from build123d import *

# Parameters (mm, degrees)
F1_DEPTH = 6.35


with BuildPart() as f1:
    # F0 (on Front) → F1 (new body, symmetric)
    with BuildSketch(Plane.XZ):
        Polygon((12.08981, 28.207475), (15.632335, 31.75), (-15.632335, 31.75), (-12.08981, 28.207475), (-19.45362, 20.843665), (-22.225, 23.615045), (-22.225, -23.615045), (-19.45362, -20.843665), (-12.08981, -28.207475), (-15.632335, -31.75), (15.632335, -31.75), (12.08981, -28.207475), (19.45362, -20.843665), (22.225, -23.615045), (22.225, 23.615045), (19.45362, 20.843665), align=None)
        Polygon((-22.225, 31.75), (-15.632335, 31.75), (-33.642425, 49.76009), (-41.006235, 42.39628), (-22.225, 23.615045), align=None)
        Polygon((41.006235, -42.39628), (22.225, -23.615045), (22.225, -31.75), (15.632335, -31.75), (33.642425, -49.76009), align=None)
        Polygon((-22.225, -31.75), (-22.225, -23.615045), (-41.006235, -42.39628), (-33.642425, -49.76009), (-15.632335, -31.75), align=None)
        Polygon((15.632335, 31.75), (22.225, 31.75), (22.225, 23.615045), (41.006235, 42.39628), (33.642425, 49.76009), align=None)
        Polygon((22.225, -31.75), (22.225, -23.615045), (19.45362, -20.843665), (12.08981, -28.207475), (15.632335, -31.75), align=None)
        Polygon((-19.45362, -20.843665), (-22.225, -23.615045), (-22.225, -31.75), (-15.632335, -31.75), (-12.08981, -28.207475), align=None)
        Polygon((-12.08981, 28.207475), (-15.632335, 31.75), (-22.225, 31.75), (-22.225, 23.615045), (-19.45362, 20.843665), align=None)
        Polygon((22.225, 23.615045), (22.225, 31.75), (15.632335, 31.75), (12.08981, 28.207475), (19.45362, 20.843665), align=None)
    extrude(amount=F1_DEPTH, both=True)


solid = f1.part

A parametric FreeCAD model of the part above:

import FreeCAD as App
import Part
import Sketcher
from FreeCAD import Vector
Q = App.Units.Quantity


def add_polygon(sketch, points):
    """Adds a closed chain of lines whose ends are joined by coincident constraints."""
    first, n = sketch.GeometryCount, len(points)
    for a, b in zip(points, points[1:] + points[:1]):
        sketch.addGeometry(Part.LineSegment(App.Vector(*a, 0), App.Vector(*b, 0)), False)
    for i in range(n):
        sketch.addConstraint(Sketcher.Constraint("Coincident", first + i, 2, first + (i + 1) % n, 1))

doc = App.newDocument("Part")
body = doc.addObject("PartDesign::Body", "Body")

sketch1 = body.newObject("Sketcher::SketchObject", "Sketch")
sketch1.AttachmentSupport = (doc.getObject("XZ_Plane"), [""])
sketch1.MapMode = "FlatFace"
add_polygon(sketch1, [(16, 32), (-16, 32), (-34, 50), (-41, 42), (-22, 24), (-22, -24), (-41, -42), (-34, -50), (-16, -32), (16, -32), (34, -50), (41, -42), (22, -24), (22, 24), (41, 42), (34, 50)])
sketch1.addConstraint([
    Sketcher.Constraint("Horizontal", 0),
    Sketcher.Constraint("Vertical", 4),
    Sketcher.Constraint("Horizontal", 8),
    Sketcher.Constraint("Vertical", 12),
    Sketcher.Constraint("Symmetric", 0, 2, 8, 2, -1, 1),
    Sketcher.Constraint("Symmetric", 1, 2, 9, 2, -1, 1),
    Sketcher.Constraint("Symmetric", 2, 2, 10, 2, -1, 1),
    Sketcher.Constraint("Symmetric", 3, 2, 11, 2, -1, 1),
    Sketcher.Constraint("Symmetric", 5, 2, 13, 2, -1, 1),
    Sketcher.Constraint("Symmetric", 6, 2, 14, 2, -1, 1),
    Sketcher.Constraint("Symmetric", 6, 2, 9, 2, -2),
    Sketcher.Constraint("Symmetric", 5, 2, 10, 2, -2),
    Sketcher.Constraint("Perpendicular", 1, 2),
    Sketcher.Constraint("Perpendicular", 2, 3),
    Sketcher.Constraint("Perpendicular", 3, 5),
    Sketcher.Constraint("Perpendicular", 5, 6),
    Sketcher.Constraint("Perpendicular", 6, 7),
    Sketcher.Constraint("Perpendicular", 11, 13),
    Sketcher.Constraint("Perpendicular", 14, 15),
    Sketcher.Constraint("DistanceY", 7, 2, 0, 2, Q("2.5 in")),
    Sketcher.Constraint("Distance", 2, Q("0.41 in")),
    Sketcher.Constraint("DistanceX", 4, 2, 11, 2, Q("1.75 in")),
    Sketcher.Constraint("DistanceX", 0, 2, 0, 1, Q("31.26467 mm")),
    Sketcher.Constraint("DistanceX", 2, 2, 0, 2, Q("25.3739 mm")),
])
pad1 = body.newObject("PartDesign::Pad", "Pad")
pad1.Profile = sketch1
pad1.Length = Q("0.5 in")
pad1.Midplane = True

doc.recompute()
